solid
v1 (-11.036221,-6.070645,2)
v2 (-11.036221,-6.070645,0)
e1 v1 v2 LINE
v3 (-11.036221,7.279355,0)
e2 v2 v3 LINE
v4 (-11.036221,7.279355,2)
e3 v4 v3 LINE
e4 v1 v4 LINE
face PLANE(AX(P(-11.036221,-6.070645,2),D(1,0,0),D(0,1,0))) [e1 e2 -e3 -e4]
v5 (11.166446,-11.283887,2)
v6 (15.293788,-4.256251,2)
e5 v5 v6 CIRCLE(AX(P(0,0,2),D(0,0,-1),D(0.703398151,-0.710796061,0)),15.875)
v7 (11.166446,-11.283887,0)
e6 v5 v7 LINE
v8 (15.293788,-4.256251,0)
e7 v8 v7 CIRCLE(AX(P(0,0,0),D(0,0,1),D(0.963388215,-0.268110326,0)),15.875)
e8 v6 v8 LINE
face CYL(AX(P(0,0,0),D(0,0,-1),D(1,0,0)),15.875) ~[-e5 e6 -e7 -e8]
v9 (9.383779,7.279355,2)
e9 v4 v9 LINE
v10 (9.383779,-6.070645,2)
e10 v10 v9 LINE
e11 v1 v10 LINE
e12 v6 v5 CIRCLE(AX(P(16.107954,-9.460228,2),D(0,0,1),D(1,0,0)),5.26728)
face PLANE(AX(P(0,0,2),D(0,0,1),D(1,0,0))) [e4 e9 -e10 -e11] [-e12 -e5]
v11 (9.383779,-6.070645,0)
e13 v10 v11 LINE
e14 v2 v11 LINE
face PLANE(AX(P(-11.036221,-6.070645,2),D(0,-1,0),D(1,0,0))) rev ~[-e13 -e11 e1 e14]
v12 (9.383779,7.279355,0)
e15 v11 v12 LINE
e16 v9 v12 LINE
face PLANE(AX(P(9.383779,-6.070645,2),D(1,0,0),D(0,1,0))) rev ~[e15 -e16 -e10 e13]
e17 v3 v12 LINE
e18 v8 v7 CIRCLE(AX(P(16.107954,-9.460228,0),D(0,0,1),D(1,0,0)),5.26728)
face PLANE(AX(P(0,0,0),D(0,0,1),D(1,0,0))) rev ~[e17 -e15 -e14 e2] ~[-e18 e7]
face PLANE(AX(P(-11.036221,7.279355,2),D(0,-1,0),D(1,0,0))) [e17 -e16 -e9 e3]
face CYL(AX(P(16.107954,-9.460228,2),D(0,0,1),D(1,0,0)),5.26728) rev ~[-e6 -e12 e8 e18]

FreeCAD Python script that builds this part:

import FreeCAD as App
import Part
import Sketcher


def add_polygon(sketch, points):
    """Adds a closed chain of lines whose ends are joined by coincident constraints."""
    first, n = sketch.GeometryCount, len(points)
    for a, b in zip(points, points[1:] + points[:1]):
        sketch.addGeometry(Part.LineSegment(App.Vector(*a, 0), App.Vector(*b, 0)), False)
    for i in range(n):
        sketch.addConstraint(Sketcher.Constraint("Coincident", first + i, 2, first + (i + 1) % n, 1))

doc = App.newDocument("Part")
params = doc.addObject("Spreadsheet::Sheet", "Params")
for row, (alias, value) in enumerate([
    ("sketch1_diameter", "31.75 mm"),
    ("pad1_length", "2 mm"),
    ("sketch2_width", "20.42 mm"),
    ("sketch2_height", "13.35 mm"),
    ("pocket1_length", "2 mm"),
    ("pocket2_length", "5 mm"),
], start=1):
    params.set(f"A{row}", alias)
    params.set(f"B{row}", "=" + value)
    params.setAlias(f"B{row}", alias)

body = doc.addObject("PartDesign::Body", "Body")

sketch1 = doc.addObject("Sketcher::SketchObject", "Sketch")
body.addObject(sketch1)
sketch1.AttachmentSupport = (doc.XY_Plane, [""])
sketch1.MapMode = "FlatFace"
sketch1.addGeometry(Part.Circle(App.Vector(0, 0, 0), App.Vector(0, 0, 1), 16), False)
sketch1.addConstraint([
    Sketcher.Constraint("Coincident", 0, 3, -1, 1),
    Sketcher.Constraint("Diameter", 0, 31.75),
])
sketch1.setExpression("Constraints[1]", "Params.sketch1_diameter")
pad1 = doc.addObject("PartDesign::Pad", "Pad")
body.addObject(pad1)
pad1.Profile = sketch1
pad1.setExpression("Length", "Params.pad1_length")

sketch2 = doc.addObject("Sketcher::SketchObject", "Sketch001")
body.addObject(sketch2)
sketch2.AttachmentSupport = (doc.XY_Plane, [""])
sketch2.MapMode = "FlatFace"
sketch2.AttachmentOffset = App.Placement(App.Vector(0, 0, 2), App.Rotation())
add_polygon(sketch2, [(-11, 7), (-11, -6), (9, -6), (9, 7)])
sketch2.addConstraint([
    Sketcher.Constraint("Vertical", 0),
    Sketcher.Constraint("Horizontal", 1),
    Sketcher.Constraint("Vertical", 2),
    Sketcher.Constraint("Horizontal", 3),
    Sketcher.Constraint("DistanceX", 1, 1, 1, 2, 20.42),
    Sketcher.Constraint("DistanceY", 0, 2, 0, 1, 13.35),
    Sketcher.Constraint("DistanceX", 0, 2, -1, 1, 11.036221),
    Sketcher.Constraint("DistanceY", 0, 2, -1, 1, 6.070645),
])
sketch2.setExpression("Constraints[8]", "Params.sketch2_width")
sketch2.setExpression("Constraints[9]", "Params.sketch2_height")
pocket1 = doc.addObject("PartDesign::Pocket", "Pocket")
body.addObject(pocket1)
pocket1.Profile = sketch2
pocket1.setExpression("Length", "Params.pocket1_length")

sketch3 = doc.addObject("Sketcher::SketchObject", "Sketch002")
body.addObject(sketch3)
sketch3.AttachmentSupport = (doc.XY_Plane, [""])
sketch3.MapMode = "FlatFace"
sketch3.AttachmentOffset = App.Placement(App.Vector(0, 0, 2), App.Rotation())
sketch3.addGeometry(Part.Circle(App.Vector(16, -9, 0), App.Vector(0, 0, 1), 5), False)
sketch3.addConstraint([
    Sketcher.Constraint("Diameter", 0, 10.53456),
    Sketcher.Constraint("DistanceY", 0, 3, -1, 1, 9.460228),
    Sketcher.Constraint("DistanceX", -1, 1, 0, 3, 16.107954),
])
pocket2 = doc.addObject("PartDesign::Pocket", "Pocket001")
body.addObject(pocket2)
pocket2.Profile = sketch3
pocket2.setExpression("Length", "Params.pocket2_length")

doc.recompute()
